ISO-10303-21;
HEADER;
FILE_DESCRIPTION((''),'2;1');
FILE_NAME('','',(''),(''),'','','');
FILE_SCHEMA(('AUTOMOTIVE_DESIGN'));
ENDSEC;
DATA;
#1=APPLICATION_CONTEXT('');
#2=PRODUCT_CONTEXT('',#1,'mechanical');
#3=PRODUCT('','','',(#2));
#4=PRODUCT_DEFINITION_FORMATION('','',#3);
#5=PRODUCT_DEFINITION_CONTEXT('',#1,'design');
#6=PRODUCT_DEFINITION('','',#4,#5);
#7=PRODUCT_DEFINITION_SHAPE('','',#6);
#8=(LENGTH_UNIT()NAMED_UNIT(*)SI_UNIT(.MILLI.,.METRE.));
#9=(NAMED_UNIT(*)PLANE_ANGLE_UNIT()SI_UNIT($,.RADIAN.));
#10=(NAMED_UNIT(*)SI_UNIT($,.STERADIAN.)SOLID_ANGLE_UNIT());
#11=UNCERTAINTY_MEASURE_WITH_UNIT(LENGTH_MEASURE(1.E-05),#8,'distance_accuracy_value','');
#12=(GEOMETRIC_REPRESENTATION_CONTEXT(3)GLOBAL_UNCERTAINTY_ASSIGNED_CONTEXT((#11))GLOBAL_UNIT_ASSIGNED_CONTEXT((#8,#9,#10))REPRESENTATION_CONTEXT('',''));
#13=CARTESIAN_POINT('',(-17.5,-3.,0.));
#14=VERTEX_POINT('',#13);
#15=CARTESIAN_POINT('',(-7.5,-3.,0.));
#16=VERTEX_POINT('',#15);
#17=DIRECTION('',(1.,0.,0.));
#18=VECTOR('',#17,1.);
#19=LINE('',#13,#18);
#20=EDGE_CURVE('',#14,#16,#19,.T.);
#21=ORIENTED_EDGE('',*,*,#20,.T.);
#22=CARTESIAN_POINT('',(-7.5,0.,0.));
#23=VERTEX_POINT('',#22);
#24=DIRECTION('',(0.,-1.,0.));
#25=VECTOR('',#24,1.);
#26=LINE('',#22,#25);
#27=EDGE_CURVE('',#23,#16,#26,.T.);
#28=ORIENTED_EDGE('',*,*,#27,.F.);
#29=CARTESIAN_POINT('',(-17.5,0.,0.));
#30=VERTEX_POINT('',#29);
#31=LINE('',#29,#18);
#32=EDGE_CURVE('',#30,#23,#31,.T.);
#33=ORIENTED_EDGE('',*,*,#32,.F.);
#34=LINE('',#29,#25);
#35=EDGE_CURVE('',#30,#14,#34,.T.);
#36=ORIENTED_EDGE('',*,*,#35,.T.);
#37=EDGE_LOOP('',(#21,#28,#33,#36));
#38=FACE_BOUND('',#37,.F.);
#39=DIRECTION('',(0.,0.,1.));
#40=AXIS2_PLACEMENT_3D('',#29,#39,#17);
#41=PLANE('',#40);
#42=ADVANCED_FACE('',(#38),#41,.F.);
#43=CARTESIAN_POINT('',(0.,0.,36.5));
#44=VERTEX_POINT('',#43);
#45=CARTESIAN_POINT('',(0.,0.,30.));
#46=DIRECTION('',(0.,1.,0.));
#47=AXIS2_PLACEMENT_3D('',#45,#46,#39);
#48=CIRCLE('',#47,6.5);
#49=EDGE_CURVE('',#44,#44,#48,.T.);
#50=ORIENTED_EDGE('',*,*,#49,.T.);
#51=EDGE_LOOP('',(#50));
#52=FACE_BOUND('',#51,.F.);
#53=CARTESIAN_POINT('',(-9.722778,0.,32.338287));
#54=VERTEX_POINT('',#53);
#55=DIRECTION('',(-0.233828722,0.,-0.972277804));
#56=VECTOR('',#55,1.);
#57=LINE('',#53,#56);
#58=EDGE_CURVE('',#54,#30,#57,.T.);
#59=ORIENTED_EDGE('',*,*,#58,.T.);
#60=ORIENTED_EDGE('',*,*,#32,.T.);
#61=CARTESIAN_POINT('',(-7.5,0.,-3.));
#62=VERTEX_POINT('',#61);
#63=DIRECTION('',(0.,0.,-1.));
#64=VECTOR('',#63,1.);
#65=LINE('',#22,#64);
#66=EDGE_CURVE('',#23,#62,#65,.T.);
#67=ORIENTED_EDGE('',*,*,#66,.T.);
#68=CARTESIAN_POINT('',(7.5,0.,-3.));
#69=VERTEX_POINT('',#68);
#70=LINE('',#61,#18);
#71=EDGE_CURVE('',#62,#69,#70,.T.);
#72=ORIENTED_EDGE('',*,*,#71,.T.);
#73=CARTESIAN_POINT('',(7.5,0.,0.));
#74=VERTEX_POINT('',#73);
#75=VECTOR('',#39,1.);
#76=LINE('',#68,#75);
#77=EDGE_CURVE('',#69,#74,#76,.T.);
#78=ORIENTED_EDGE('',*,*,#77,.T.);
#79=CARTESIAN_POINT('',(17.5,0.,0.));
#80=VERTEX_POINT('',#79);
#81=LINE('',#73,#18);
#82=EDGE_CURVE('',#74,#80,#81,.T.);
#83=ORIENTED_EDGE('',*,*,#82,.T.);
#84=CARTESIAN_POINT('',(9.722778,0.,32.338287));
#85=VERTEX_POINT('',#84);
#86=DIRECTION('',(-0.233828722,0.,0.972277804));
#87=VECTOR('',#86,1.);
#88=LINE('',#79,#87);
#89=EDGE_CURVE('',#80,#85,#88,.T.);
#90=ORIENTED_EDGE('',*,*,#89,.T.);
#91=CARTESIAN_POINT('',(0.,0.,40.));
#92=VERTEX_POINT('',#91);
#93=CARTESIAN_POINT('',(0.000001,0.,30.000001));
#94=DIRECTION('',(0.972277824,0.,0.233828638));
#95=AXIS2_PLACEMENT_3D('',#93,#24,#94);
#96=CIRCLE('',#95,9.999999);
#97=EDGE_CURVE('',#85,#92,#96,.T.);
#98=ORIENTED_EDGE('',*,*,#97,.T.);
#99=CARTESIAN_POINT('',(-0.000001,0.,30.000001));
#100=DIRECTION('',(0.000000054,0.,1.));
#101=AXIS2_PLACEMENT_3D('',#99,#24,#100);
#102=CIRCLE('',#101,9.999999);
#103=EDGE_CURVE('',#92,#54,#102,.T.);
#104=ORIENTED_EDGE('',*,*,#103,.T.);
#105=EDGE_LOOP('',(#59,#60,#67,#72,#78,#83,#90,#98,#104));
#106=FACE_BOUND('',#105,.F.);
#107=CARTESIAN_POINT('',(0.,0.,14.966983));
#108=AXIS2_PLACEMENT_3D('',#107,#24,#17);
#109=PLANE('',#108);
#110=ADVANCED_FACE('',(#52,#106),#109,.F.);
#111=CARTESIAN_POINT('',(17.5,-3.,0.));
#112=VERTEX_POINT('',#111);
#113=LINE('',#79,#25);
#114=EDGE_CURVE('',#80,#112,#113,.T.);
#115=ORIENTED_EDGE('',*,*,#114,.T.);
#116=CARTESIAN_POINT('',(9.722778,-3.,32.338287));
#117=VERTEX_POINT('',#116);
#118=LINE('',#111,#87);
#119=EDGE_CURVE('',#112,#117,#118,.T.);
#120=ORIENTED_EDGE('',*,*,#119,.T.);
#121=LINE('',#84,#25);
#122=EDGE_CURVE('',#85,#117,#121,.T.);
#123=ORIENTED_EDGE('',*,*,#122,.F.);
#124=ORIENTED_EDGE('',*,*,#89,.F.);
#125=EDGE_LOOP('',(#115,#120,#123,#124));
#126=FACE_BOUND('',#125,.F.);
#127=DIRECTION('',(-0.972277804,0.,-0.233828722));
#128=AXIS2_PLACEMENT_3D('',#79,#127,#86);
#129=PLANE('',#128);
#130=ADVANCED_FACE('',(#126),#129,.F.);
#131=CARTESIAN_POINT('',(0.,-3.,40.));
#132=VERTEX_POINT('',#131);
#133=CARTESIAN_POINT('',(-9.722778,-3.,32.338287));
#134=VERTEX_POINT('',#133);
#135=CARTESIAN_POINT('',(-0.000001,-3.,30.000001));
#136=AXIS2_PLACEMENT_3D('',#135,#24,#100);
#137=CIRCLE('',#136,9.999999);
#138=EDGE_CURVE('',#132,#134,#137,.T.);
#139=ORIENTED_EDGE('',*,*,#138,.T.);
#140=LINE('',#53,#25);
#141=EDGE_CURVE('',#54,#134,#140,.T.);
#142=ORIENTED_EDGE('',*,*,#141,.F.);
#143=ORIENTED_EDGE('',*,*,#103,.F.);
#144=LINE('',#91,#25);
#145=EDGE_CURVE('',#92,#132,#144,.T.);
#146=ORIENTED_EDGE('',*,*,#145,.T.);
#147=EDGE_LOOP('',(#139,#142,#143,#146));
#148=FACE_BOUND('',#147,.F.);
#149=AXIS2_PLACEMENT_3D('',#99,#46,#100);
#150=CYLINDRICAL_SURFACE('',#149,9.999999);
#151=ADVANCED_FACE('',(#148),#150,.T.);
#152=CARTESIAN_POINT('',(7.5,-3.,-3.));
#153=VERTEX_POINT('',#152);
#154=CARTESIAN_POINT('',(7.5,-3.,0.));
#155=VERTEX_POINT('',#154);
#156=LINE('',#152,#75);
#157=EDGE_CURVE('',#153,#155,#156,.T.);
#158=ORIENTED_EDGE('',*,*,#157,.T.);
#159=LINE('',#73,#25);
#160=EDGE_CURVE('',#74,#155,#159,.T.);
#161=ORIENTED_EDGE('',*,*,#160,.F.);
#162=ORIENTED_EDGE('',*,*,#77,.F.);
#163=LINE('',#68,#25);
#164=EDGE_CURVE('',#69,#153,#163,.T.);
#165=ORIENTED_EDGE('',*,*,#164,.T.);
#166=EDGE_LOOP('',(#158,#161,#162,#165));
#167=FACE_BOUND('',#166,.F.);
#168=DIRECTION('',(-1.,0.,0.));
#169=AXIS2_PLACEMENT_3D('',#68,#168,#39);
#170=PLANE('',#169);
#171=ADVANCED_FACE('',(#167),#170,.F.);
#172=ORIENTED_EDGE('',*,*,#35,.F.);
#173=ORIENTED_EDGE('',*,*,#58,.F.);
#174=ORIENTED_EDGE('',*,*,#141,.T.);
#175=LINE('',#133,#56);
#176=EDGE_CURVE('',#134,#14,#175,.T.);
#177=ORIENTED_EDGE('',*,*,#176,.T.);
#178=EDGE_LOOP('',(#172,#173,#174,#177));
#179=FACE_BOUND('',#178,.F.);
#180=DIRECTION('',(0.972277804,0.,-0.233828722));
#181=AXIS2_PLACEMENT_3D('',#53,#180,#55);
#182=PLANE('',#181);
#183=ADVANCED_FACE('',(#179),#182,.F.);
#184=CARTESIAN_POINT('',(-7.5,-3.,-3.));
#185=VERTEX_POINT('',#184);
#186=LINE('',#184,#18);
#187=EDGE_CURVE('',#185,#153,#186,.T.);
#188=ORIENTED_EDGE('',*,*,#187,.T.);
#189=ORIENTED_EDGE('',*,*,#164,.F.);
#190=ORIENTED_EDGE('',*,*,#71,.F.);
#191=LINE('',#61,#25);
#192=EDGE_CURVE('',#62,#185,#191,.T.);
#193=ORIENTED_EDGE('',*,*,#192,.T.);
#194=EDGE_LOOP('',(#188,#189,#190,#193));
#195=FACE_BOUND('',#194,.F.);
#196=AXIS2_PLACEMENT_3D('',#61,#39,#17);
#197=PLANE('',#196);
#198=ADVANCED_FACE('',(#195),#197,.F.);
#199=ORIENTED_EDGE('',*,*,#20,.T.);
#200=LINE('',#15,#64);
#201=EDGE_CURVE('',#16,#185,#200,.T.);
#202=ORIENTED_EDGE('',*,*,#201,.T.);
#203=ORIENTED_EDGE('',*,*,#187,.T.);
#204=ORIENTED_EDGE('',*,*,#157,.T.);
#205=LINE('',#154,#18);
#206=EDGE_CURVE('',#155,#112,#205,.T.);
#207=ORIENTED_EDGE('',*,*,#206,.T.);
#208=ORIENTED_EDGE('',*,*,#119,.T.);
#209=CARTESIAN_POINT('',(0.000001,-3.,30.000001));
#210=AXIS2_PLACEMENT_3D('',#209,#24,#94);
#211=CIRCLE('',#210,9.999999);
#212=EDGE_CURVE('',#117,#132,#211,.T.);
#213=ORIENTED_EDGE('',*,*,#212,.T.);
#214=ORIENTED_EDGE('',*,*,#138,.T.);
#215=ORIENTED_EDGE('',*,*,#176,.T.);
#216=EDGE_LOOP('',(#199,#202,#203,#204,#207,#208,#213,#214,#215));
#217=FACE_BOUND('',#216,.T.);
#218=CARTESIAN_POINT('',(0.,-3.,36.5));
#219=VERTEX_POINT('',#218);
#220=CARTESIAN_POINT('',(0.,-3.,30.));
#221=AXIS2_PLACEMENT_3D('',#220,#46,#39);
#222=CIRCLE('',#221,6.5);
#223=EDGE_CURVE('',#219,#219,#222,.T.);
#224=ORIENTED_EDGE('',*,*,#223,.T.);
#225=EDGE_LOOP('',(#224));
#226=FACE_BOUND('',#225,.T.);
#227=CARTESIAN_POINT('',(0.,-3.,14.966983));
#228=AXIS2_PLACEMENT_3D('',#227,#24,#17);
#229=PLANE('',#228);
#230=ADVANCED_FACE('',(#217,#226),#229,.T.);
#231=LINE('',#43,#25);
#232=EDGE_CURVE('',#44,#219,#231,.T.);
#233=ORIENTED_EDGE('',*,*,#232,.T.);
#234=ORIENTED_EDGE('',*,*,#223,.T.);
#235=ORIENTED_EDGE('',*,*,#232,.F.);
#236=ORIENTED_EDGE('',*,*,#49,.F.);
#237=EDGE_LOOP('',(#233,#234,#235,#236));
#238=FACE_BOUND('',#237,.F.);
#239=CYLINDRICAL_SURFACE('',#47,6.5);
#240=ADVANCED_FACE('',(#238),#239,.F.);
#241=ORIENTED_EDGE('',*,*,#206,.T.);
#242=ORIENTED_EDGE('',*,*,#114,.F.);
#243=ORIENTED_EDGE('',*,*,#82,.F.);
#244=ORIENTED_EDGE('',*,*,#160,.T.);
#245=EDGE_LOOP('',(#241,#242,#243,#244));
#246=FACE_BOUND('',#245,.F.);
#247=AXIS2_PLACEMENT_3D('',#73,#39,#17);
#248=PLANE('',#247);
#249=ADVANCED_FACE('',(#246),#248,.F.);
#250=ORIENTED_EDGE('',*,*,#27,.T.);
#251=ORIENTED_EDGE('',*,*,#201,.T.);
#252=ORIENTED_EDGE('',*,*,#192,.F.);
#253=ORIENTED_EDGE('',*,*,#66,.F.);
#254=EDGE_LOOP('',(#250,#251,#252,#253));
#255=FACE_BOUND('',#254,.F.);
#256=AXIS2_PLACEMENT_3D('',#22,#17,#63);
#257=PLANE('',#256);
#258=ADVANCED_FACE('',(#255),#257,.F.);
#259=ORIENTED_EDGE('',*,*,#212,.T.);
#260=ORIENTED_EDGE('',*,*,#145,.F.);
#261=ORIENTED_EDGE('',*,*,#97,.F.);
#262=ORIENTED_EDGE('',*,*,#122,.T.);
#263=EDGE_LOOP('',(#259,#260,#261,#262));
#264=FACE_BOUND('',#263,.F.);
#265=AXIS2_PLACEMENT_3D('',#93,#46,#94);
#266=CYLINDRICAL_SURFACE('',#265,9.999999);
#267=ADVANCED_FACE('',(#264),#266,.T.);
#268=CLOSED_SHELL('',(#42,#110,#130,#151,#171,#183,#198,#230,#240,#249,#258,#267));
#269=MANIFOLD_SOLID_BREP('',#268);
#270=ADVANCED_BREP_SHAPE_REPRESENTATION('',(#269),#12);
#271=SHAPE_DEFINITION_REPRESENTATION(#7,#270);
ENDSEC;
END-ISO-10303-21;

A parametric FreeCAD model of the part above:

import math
import FreeCAD as App
import Part
import Sketcher
from FreeCAD import Vector

doc = App.newDocument("Part")
params = doc.addObject("Spreadsheet::Sheet", "Params")
for row, (alias, value) in enumerate([
    ("sketch1_diameter", "13 mm"),
    ("sketch1_radius", "9.999999 mm"),
    ("sketch1_width", "10 mm"),
    ("sketch1_width2", "15 mm"),
    ("sketch1_height", "3 mm"),
    ("pad1_length", "3 mm"),
], start=1):
    params.set(f"A{row}", alias)
    params.set(f"B{row}", "=" + value)
    params.setAlias(f"B{row}", alias)

body = doc.addObject("PartDesign::Body", "Body")

# Sketch on XZ plane
sketch1 = body.newObject("Sketcher::SketchObject", "Sketch")
sketch1.AttachmentSupport = (doc.getObject("XZ_Plane"), [""])
sketch1.MapMode = "FlatFace"
sketch1.addGeometry([
    Part.ArcOfCircle(Part.Circle(Vector(0, 30, 0), Vector(0, 0, 1), 10), math.radians(90), math.radians(166)),  # 0
    Part.LineSegment(Vector(-9.7, 32.3, 0), Vector(-17.5, 0, 0)),  # 1
    Part.LineSegment(Vector(-17.5, 0, 0), Vector(-7.5, 0, 0)),  # 2
    Part.LineSegment(Vector(-7.5, 0, 0), Vector(-7.5, -3, 0)),  # 3
    Part.LineSegment(Vector(-7.5, -3, 0), Vector(7.5, -3, 0)),  # 4
    Part.LineSegment(Vector(7.5, -3, 0), Vector(7.5, 0, 0)),  # 5
    Part.LineSegment(Vector(7.5, 0, 0), Vector(17.5, 0, 0)),  # 6
    Part.LineSegment(Vector(17.5, 0, 0), Vector(9.7, 32.3, 0)),  # 7
    Part.ArcOfCircle(Part.Circle(Vector(0, 30, 0), Vector(0, 0, 1), 10), math.radians(14), math.radians(90)),  # 8
    Part.Circle(Vector(0, 30, 0), Vector(0, 0, 1), 6.5),  # 9
], False)
sketch1.addConstraint([
    Sketcher.Constraint("Tangent", 0, 2, 1, 1),
    Sketcher.Constraint("Coincident", 1, 2, 2, 1),
    Sketcher.Constraint("Coincident", 2, 2, 3, 1),
    Sketcher.Constraint("Coincident", 3, 2, 4, 1),
    Sketcher.Constraint("Coincident", 4, 2, 5, 1),
    Sketcher.Constraint("Coincident", 5, 2, 6, 1),
    Sketcher.Constraint("Coincident", 6, 2, 7, 1),
    Sketcher.Constraint("Tangent", 7, 2, 8, 1),
    Sketcher.Constraint("Tangent", 8, 2, 0, 1),
    Sketcher.Constraint("Horizontal", 2),
    Sketcher.Constraint("Vertical", 3),
    Sketcher.Constraint("Horizontal", 4),
    Sketcher.Constraint("Vertical", 5),
    Sketcher.Constraint("Horizontal", 6),
    Sketcher.Constraint("Coincident", 9, 3, 0, 3),
    Sketcher.Constraint("Equal", 0, 8),
    Sketcher.Constraint("Symmetric", 2, 2, 5, 2, -1, 1),
    Sketcher.Constraint("Symmetric", 1, 2, 6, 2, -2),
    Sketcher.Constraint("PointOnObject", 0, 3, -2),
    Sketcher.Constraint("PointOnObject", 8, 2, -2),
    Sketcher.Constraint("Diameter", 9, 13.0),
    Sketcher.Constraint("Radius", 0, 9.999999),
    Sketcher.Constraint("DistanceX", 2, 1, 2, 2, 10.0),
    Sketcher.Constraint("DistanceX", 4, 1, 4, 2, 15.0),
    Sketcher.Constraint("DistanceY", 3, 2, 3, 1, 3.0),
    Sketcher.Constraint("DistanceY", -1, 1, 0, 3, 30.000001),
])
sketch1.setExpression("Constraints[20]", "Params.sketch1_diameter")
sketch1.setExpression("Constraints[21]", "Params.sketch1_radius")
sketch1.setExpression("Constraints[22]", "Params.sketch1_width")
sketch1.setExpression("Constraints[23]", "Params.sketch1_width2")
sketch1.setExpression("Constraints[24]", "Params.sketch1_height")
pad1 = body.newObject("PartDesign::Pad", "Pad")
pad1.Profile = sketch1
pad1.setExpression("Length", "Params.pad1_length")

doc.recompute()
